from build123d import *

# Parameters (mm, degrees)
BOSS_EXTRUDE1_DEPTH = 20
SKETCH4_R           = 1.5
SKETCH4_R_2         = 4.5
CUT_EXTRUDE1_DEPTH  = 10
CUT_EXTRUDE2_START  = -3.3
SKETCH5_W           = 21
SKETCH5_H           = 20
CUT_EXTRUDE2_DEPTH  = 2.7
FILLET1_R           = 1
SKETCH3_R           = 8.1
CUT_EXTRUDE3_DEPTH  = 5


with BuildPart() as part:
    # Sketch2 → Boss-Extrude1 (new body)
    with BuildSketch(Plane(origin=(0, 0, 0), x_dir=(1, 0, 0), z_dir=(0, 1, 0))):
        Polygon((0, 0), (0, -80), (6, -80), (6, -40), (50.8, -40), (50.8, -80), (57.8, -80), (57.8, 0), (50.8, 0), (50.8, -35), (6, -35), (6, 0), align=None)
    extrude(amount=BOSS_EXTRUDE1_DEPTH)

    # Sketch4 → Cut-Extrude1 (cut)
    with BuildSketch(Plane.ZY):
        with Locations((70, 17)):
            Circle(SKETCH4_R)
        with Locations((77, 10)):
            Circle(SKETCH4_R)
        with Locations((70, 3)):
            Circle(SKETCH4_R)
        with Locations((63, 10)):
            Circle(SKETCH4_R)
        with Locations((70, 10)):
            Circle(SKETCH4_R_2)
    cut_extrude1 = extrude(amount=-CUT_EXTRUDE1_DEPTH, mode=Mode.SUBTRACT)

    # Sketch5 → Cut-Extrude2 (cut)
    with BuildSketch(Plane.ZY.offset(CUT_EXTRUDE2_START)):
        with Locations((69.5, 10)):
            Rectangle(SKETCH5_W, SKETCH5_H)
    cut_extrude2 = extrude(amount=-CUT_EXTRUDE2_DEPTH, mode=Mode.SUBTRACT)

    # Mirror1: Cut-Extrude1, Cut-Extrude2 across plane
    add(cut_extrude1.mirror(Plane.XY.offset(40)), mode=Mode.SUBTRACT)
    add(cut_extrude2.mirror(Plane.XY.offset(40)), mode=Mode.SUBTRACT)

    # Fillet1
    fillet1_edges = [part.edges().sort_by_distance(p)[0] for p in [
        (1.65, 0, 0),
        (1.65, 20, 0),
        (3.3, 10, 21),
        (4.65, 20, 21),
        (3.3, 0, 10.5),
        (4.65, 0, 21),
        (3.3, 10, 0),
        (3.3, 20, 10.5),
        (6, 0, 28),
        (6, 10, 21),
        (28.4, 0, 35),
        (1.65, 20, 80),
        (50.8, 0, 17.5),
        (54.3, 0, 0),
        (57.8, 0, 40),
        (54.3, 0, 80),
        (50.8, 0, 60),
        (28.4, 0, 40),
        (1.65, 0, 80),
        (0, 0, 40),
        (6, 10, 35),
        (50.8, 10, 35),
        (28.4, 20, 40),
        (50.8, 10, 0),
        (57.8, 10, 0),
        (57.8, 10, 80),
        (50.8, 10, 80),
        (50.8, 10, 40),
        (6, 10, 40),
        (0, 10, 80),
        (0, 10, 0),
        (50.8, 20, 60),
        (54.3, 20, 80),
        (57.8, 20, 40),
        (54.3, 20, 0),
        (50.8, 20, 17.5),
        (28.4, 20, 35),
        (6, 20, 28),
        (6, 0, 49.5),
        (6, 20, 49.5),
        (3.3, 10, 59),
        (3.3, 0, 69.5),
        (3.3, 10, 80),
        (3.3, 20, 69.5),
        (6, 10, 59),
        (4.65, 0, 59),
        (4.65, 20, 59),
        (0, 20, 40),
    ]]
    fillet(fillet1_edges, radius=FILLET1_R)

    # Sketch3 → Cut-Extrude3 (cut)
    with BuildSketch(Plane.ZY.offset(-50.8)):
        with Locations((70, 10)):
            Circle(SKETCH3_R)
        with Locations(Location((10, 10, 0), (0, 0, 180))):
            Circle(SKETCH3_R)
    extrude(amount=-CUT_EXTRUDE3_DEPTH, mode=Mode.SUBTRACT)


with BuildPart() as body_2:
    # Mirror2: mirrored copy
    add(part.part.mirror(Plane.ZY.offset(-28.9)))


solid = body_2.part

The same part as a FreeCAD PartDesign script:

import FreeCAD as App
import Part
import Sketcher
from FreeCAD import Vector
Q = App.Units.Quantity


def edges_at(feature, points):
    """Names of the edges that pass closest to the given points."""
    edges = feature.Shape.Edges
    near = lambda p: min(range(len(edges)), key=lambda i: edges[i].distToShape(Part.Vertex(*p))[0])
    return sorted({f"Edge{near(p) + 1}" for p in points})

doc = App.newDocument("Part")
body = doc.addObject("PartDesign::Body", "Body")

sketch1 = doc.addObject("Sketcher::SketchObject", "Sketch")
body.addObject(sketch1)
sketch1.AttachmentSupport = (doc.XZ_Plane, [""])
sketch1.MapMode = "FlatFace"
sketch1.addGeometry([
    Part.LineSegment(Vector(0, 0, 0), Vector(0, 80, 0)),
    Part.LineSegment(Vector(0, 80, 0), Vector(6, 80, 0)),
    Part.LineSegment(Vector(6, 80, 0), Vector(6, 40, 0)),
    Part.LineSegment(Vector(6, 40, 0), Vector(51, 40, 0)),
    Part.LineSegment(Vector(51, 40, 0), Vector(51, 80, 0)),
    Part.LineSegment(Vector(51, 80, 0), Vector(58, 80, 0)),
    Part.LineSegment(Vector(58, 80, 0), Vector(58, 0, 0)),
    Part.LineSegment(Vector(58, 0, 0), Vector(51, 0, 0)),
    Part.LineSegment(Vector(51, 0, 0), Vector(51, 35, 0)),
    Part.LineSegment(Vector(51, 35, 0), Vector(6, 35, 0)),
    Part.LineSegment(Vector(6, 35, 0), Vector(6, 0, 0)),
    Part.LineSegment(Vector(6, 0, 0), Vector(0, 0, 0)),
], False)
sketch1.addConstraint([
    Sketcher.Constraint("Coincident", 0, 2, 1, 1),
    Sketcher.Constraint("Coincident", 1, 2, 2, 1),
    Sketcher.Constraint("Coincident", 2, 2, 3, 1),
    Sketcher.Constraint("Coincident", 3, 2, 4, 1),
    Sketcher.Constraint("Coincident", 4, 2, 5, 1),
    Sketcher.Constraint("Coincident", 5, 2, 6, 1),
    Sketcher.Constraint("Coincident", 6, 2, 7, 1),
    Sketcher.Constraint("Coincident", 7, 2, 8, 1),
    Sketcher.Constraint("Coincident", 8, 2, 9, 1),
    Sketcher.Constraint("Coincident", 9, 2, 10, 1),
    Sketcher.Constraint("Coincident", 10, 2, 11, 1),
    Sketcher.Constraint("Coincident", 11, 2, 0, 1),
    Sketcher.Constraint("Vertical", 0),
    Sketcher.Constraint("Horizontal", 1),
    Sketcher.Constraint("Vertical", 2),
    Sketcher.Constraint("Horizontal", 3),
    Sketcher.Constraint("Vertical", 4),
    Sketcher.Constraint("Horizontal", 5),
    Sketcher.Constraint("Vertical", 6),
    Sketcher.Constraint("Horizontal", 7),
    Sketcher.Constraint("Vertical", 8),
    Sketcher.Constraint("Horizontal", 9),
    Sketcher.Constraint("Vertical", 10),
    Sketcher.Constraint("Horizontal", 11),
    Sketcher.Constraint("Coincident", 11, 2, -1, 1),
    Sketcher.Constraint("PointOnObject", 6, 2, -1),
    Sketcher.Constraint("Horizontal", 1, 2, 4, 2),
    Sketcher.Constraint("Vertical", 4, 2, 7, 2),
    Sketcher.Constraint("Vertical", 2, 2, 9, 2),
    Sketcher.Constraint("DistanceX", 1, 1, 1, 2, Q("6 mm")),
    Sketcher.Constraint("DistanceX", 5, 1, 5, 2, Q("7 mm")),
    Sketcher.Constraint("DistanceY", 0, 1, 0, 2, Q("80 mm")),
    Sketcher.Constraint("DistanceY", 2, 2, 2, 1, Q("40 mm")),
    Sketcher.Constraint("DistanceY", 8, 1, 8, 2, Q("35 mm")),
    Sketcher.Constraint("DistanceX", 3, 1, 3, 2, Q("44.8 mm")),
])
pad1 = doc.addObject("PartDesign::Pad", "Pad")
body.addObject(pad1)
pad1.Profile = sketch1
pad1.Length = 20
pad1.Reversed = True

sketch2 = doc.addObject("Sketcher::SketchObject", "Sketch001")
body.addObject(sketch2)
sketch2.AttachmentSupport = (doc.YZ_Plane, [""])
sketch2.MapMode = "FlatFace"
sketch2.addGeometry([
    Part.Circle(Vector(17, 70, 0), Vector(0, 0, 1), 1.5),
    Part.Circle(Vector(10, 77, 0), Vector(0, 0, 1), 1.5),
    Part.Circle(Vector(3, 70, 0), Vector(0, 0, 1), 1.5),
    Part.Circle(Vector(10, 63, 0), Vector(0, 0, 1), 1.5),
    Part.Circle(Vector(10, 70, 0), Vector(0, 0, 1), 4.5),
], False)
sketch2.addConstraint([
    Sketcher.Constraint("Equal", 0, 1),
    Sketcher.Constraint("Equal", 1, 2),
    Sketcher.Constraint("Equal", 2, 3),
    Sketcher.Constraint("Horizontal", 0, 3, 2, 3),
    Sketcher.Constraint("Horizontal", 2, 3, 4, 3),
    Sketcher.Constraint("Vertical", 1, 3, 3, 3),
    Sketcher.Constraint("Vertical", 3, 3, 4, 3),
    Sketcher.Constraint("Diameter", 0, Q("3 mm")),
    Sketcher.Constraint("Diameter", 4, Q("9 mm")),
    Sketcher.Constraint("DistanceX", -1, 1, 0, 3, Q("17 mm")),
    Sketcher.Constraint("DistanceY", -1, 1, 0, 3, Q("70 mm")),
    Sketcher.Constraint("DistanceX", -1, 1, 1, 3, Q("10 mm")),
    Sketcher.Constraint("DistanceY", -1, 1, 1, 3, Q("77 mm")),
    Sketcher.Constraint("DistanceX", -1, 1, 2, 3, Q("3 mm")),
    Sketcher.Constraint("DistanceY", -1, 1, 3, 3, Q("63 mm")),
])
pocket1 = doc.addObject("PartDesign::Pocket", "Pocket")
body.addObject(pocket1)
pocket1.Profile = sketch2
pocket1.Length = 10
pocket1.Reversed = True

sketch3 = doc.addObject("Sketcher::SketchObject", "Sketch002")
body.addObject(sketch3)
sketch3.AttachmentSupport = (doc.YZ_Plane, [""])
sketch3.MapMode = "FlatFace"
sketch3.AttachmentOffset = App.Placement(Vector(0, 0, 3.3), App.Rotation())
sketch3.addGeometry([
    Part.LineSegment(Vector(20, 59, 0), Vector(0, 59, 0)),
    Part.LineSegment(Vector(0, 59, 0), Vector(0, 80, 0)),
    Part.LineSegment(Vector(0, 80, 0), Vector(20, 80, 0)),
    Part.LineSegment(Vector(20, 80, 0), Vector(20, 59, 0)),
], False)
sketch3.addConstraint([
    Sketcher.Constraint("Coincident", 0, 2, 1, 1),
    Sketcher.Constraint("Coincident", 1, 2, 2, 1),
    Sketcher.Constraint("Coincident", 2, 2, 3, 1),
    Sketcher.Constraint("Coincident", 3, 2, 0, 1),
    Sketcher.Constraint("Horizontal", 0),
    Sketcher.Constraint("Vertical", 1),
    Sketcher.Constraint("Horizontal", 2),
    Sketcher.Constraint("Vertical", 3),
    Sketcher.Constraint("PointOnObject", 0, 2, -2),
    Sketcher.Constraint("DistanceX", 0, 2, 0, 1, Q("20 mm")),
    Sketcher.Constraint("DistanceY", 1, 1, 1, 2, Q("21 mm")),
    Sketcher.Constraint("DistanceY", -1, 1, 0, 2, Q("59 mm")),
])
pocket2 = doc.addObject("PartDesign::Pocket", "Pocket001")
body.addObject(pocket2)
pocket2.Profile = sketch3
pocket2.Length = 2.7
pocket2.Reversed = True
doc.recompute()

datumplane = doc.addObject("PartDesign::Plane", "DatumPlane")
body.addObject(datumplane)
datumplane.AttachmentSupport = (doc.XY_Plane, [""])
datumplane.MapMode = "FlatFace"
datumplane.AttachmentOffset = App.Placement(Vector(0, 0, 40), App.Rotation())
mirrored = doc.addObject("PartDesign::Mirrored", "Mirrored")
body.addObject(mirrored)
mirrored.Originals = [pocket1, pocket2]
mirrored.MirrorPlane = (datumplane, [""])
body.Tip = mirrored
doc.recompute()

fillet = doc.addObject("PartDesign::Fillet", "Fillet")
body.addObject(fillet)
fillet.Base = (mirrored, edges_at(mirrored, [
    (1.65, 0, 0),
    (1.65, 20, 0),
    (3.3, 10, 21),
    (4.65, 20, 21),
    (3.3, 0, 10.5),
    (4.65, 0, 21),
    (3.3, 10, 0),
    (3.3, 20, 10.5),
    (6, 0, 28),
    (6, 10, 21),
    (28.4, 0, 35),
    (1.65, 20, 80),
    (50.8, 0, 17.5),
    (54.3, 0, 0),
    (57.8, 0, 40),
    (54.3, 0, 80),
    (50.8, 0, 60),
    (28.4, 0, 40),
    (1.65, 0, 80),
    (0, 0, 40),
    (6, 10, 35),
    (50.8, 10, 35),
    (28.4, 20, 40),
    (50.8, 10, 0),
    (57.8, 10, 0),
    (57.8, 10, 80),
    (50.8, 10, 80),
    (50.8, 10, 40),
    (6, 10, 40),
    (0, 10, 80),
    (0, 10, 0),
    (50.8, 20, 60),
    (54.3, 20, 80),
    (57.8, 20, 40),
    (54.3, 20, 0),
    (50.8, 20, 17.5),
    (28.4, 20, 35),
    (6, 20, 28),
    (6, 0, 49.5),
    (6, 20, 49.5),
    (3.3, 10, 59),
    (3.3, 0, 69.5),
    (3.3, 10, 80),
    (3.3, 20, 69.5),
    (6, 10, 59),
    (4.65, 0, 59),
    (4.65, 20, 59),
    (0, 20, 40),
]))
fillet.Radius = 1

sketch4 = doc.addObject("Sketcher::SketchObject", "Sketch003")
body.addObject(sketch4)
sketch4.AttachmentSupport = (doc.YZ_Plane, [""])
sketch4.MapMode = "FlatFace"
sketch4.AttachmentOffset = App.Placement(Vector(0, 0, 50.8), App.Rotation())
sketch4.addGeometry([
    Part.Circle(Vector(10, 70, 0), Vector(0, 0, 1), 8),
    Part.Circle(Vector(10, 10, 0), Vector(0, 0, 1), 8),
], False)
sketch4.addConstraint([
    Sketcher.Constraint("Equal", 0, 1),
    Sketcher.Constraint("Vertical", 0, 3, 1, 3),
    Sketcher.Constraint("Diameter", 0, Q("16.2 mm")),
    Sketcher.Constraint("DistanceX", -1, 1, 0, 3, Q("10 mm")),
    Sketcher.Constraint("DistanceY", -1, 1, 0, 3, Q("70 mm")),
    Sketcher.Constraint("DistanceY", -1, 1, 1, 3, Q("10 mm")),
])
pocket3 = doc.addObject("PartDesign::Pocket", "Pocket002")
body.addObject(pocket3)
pocket3.Profile = sketch4
pocket3.Length = 5
pocket3.Reversed = True
body2 = doc.addObject("PartDesign::Body", "Body001")
doc.recompute()

mirroring = doc.addObject("Part::Mirroring", "Mirroring")
mirroring.Source = body
mirroring.Base = Vector(28.9, 0, 0)
mirroring.Normal = Vector(-1, 0, 0)
body2.BaseFeature = mirroring
doc.recompute()
body.Visibility = False
mirroring.Visibility = False

doc.recompute()
